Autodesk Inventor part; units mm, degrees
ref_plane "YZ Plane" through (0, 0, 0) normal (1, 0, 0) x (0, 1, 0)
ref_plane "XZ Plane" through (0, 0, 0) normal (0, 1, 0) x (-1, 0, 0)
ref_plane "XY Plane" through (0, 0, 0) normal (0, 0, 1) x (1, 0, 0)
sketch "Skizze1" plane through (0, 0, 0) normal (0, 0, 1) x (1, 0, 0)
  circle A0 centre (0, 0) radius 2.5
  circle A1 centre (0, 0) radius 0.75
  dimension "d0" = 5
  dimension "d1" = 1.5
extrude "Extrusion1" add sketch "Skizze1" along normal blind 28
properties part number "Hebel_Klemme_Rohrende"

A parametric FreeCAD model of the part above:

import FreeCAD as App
import Part
import Sketcher

V = App.Vector
Q = App.Units.Quantity

doc = App.newDocument("Part")
params = doc.addObject("Spreadsheet::Sheet", "Params")
for row, (alias, value) in enumerate([
    ("sketch1_diameter", "5 mm"),
    ("sketch1_diameter2", "1.5 mm"),
    ("pad1_length", "28 mm"),
], start=1):
    params.set(f"A{row}", alias)
    params.set(f"B{row}", "=" + value)
    params.setAlias(f"B{row}", alias)

body = doc.addObject("PartDesign::Body", "Body")

sketch1 = body.newObject("Sketcher::SketchObject", "Sketch")
sketch1.AttachmentSupport = (doc.getObject("XY_Plane"), [""])
sketch1.MapMode = "FlatFace"
sketch1.addGeometry(Part.Circle(V(0, 0, 0), V(0, 0, 1), 2.5), False)
sketch1.addGeometry(Part.Circle(V(0, 0, 0), V(0, 0, 1), 0.75), False)
sketch1.addConstraint(Sketcher.Constraint("Coincident", 0, 3, -1, 1))
sketch1.addConstraint(Sketcher.Constraint("Coincident", 1, 3, -1, 1))
sketch1.addConstraint(Sketcher.Constraint("Diameter", 0, Q("5 mm")))
sketch1.addConstraint(Sketcher.Constraint("Diameter", 1, Q("1.5 mm")))
sketch1.setExpression("Constraints[2]", "Params.sketch1_diameter")
sketch1.setExpression("Constraints[3]", "Params.sketch1_diameter2")
pad1 = body.newObject("PartDesign::Pad", "Pad")
pad1.Profile = sketch1
pad1.setExpression("Length", "Params.pad1_length")

doc.recompute()
